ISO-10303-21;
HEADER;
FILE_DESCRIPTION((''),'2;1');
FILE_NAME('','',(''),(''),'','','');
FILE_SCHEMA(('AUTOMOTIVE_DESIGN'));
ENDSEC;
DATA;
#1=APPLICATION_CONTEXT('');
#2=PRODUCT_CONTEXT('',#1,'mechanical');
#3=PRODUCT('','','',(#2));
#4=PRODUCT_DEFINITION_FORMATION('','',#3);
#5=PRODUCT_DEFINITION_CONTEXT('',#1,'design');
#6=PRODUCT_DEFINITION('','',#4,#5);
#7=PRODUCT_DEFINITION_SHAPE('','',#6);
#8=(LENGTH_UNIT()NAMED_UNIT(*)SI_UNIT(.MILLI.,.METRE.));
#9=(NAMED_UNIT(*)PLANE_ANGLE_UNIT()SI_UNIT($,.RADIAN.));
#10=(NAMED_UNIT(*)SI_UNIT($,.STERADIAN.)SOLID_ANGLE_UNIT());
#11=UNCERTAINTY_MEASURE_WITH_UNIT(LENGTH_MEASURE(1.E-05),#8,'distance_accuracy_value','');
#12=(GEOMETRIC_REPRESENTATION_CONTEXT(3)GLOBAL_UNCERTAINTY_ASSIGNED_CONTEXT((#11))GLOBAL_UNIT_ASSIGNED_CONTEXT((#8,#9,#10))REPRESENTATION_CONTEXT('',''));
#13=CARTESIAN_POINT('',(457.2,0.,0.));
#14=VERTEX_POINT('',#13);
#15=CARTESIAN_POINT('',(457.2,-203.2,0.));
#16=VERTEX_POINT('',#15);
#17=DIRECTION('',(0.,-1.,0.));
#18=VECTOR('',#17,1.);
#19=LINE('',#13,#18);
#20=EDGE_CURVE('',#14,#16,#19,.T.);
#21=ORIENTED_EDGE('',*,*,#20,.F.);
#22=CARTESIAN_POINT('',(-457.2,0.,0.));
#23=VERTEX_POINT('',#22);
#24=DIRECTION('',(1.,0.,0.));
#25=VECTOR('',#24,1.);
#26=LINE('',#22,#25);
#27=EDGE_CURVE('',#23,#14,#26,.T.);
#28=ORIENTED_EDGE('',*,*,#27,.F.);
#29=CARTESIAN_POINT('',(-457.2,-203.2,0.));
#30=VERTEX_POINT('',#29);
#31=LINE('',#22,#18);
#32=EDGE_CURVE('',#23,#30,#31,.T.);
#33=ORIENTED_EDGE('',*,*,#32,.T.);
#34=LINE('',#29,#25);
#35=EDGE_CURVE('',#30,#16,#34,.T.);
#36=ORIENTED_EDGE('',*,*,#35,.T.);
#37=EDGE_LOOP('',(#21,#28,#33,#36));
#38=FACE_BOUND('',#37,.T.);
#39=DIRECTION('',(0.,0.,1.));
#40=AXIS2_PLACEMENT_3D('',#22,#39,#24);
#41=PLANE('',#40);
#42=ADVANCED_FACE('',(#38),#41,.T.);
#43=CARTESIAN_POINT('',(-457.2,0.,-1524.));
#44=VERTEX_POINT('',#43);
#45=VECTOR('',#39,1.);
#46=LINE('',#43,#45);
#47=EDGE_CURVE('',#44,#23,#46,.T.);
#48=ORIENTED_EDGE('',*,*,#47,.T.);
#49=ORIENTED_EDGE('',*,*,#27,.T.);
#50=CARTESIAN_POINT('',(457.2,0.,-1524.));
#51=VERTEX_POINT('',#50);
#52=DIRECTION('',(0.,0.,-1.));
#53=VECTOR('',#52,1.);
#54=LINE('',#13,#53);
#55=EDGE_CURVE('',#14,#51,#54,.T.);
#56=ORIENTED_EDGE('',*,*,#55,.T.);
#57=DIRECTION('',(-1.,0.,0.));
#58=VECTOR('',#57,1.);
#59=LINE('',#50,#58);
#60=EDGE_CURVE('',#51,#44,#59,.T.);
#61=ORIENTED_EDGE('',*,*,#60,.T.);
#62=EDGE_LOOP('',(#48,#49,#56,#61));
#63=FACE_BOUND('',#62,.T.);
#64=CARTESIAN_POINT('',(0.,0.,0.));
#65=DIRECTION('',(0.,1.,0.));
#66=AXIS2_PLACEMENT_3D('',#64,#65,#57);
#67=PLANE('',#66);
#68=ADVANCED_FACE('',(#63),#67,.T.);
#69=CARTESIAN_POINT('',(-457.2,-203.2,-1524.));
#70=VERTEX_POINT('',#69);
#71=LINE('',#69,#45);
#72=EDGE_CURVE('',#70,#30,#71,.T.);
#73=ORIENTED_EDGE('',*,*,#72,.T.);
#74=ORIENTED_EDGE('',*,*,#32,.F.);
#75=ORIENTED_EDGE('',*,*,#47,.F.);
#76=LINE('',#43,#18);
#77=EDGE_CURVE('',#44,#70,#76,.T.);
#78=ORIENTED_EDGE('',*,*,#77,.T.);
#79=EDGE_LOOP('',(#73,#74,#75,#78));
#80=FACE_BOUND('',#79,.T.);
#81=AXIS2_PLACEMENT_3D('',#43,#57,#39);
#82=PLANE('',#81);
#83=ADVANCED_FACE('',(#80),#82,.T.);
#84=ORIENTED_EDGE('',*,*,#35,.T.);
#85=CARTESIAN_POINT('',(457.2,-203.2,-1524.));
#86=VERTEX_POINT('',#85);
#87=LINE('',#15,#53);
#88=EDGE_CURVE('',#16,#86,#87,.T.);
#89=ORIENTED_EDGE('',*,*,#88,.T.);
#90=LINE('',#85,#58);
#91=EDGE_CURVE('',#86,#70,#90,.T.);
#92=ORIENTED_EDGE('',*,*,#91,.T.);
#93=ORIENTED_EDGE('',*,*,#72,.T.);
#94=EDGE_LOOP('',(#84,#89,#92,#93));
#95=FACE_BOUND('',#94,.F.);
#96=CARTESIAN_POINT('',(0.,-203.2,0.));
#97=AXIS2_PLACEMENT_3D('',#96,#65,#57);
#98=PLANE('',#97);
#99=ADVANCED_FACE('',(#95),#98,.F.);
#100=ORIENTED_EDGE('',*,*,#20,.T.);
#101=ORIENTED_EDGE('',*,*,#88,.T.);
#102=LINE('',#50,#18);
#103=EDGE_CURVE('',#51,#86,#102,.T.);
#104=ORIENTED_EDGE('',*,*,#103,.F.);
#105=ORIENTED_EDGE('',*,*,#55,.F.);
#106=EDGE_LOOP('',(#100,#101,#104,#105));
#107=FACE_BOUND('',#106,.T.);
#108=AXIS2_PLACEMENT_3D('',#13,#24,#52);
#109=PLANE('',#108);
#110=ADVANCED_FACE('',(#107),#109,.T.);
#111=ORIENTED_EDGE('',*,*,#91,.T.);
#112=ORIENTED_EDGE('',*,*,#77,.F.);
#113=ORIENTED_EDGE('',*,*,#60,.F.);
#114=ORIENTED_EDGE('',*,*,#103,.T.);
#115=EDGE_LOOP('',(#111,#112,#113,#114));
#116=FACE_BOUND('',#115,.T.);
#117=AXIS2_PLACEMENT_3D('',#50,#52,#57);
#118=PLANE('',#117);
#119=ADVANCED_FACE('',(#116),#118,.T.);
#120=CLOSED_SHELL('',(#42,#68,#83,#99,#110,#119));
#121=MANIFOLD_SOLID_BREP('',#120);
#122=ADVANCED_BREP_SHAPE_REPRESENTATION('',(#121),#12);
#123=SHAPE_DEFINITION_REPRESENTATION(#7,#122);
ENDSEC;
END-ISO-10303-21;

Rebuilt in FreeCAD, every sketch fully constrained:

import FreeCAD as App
import Part
import Sketcher
from FreeCAD import Vector
Q = App.Units.Quantity


def add_polygon(sketch, points):
    """Adds a closed chain of lines whose ends are joined by coincident constraints."""
    first, n = sketch.GeometryCount, len(points)
    for a, b in zip(points, points[1:] + points[:1]):
        sketch.addGeometry(Part.LineSegment(App.Vector(*a, 0), App.Vector(*b, 0)), False)
    for i in range(n):
        sketch.addConstraint(Sketcher.Constraint("Coincident", first + i, 2, first + (i + 1) % n, 1))

doc = App.newDocument("Part")
params = doc.addObject("Spreadsheet::Sheet", "Params")
for row, (alias, value) in enumerate([
    ("sketch1_width", "36 in"),
    ("sketch1_height", "60 in"),
    ("pad1_length", "8 in"),
], start=1):
    params.set(f"A{row}", alias)
    params.set(f"B{row}", "=" + value)
    params.setAlias(f"B{row}", alias)

body = doc.addObject("PartDesign::Body", "Body")

# Sketch on XZ plane
sketch1 = body.newObject("Sketcher::SketchObject", "Sketch")
sketch1.AttachmentSupport = (doc.getObject("XZ_Plane"), [""])
sketch1.MapMode = "FlatFace"
add_polygon(sketch1, [(-457, -1524), (-457, 0), (457, 0), (457, -1524)])  # lines 0-3
sketch1.addConstraint([
    Sketcher.Constraint("Vertical", 0),
    Sketcher.Constraint("Horizontal", 1),
    Sketcher.Constraint("Vertical", 2),
    Sketcher.Constraint("Horizontal", 3),
    Sketcher.Constraint("Symmetric", 0, 2, 1, 2, -1, 1),
    Sketcher.Constraint("DistanceX", 1, 1, 1, 2, Q("36 in")),
    Sketcher.Constraint("DistanceY", 0, 1, 0, 2, Q("60 in")),
])
sketch1.setExpression("Constraints[9]", "Params.sketch1_width")
sketch1.setExpression("Constraints[10]", "Params.sketch1_height")
pad1 = body.newObject("PartDesign::Pad", "Pad")
pad1.Profile = sketch1
pad1.setExpression("Length", "Params.pad1_length")

doc.recompute()
